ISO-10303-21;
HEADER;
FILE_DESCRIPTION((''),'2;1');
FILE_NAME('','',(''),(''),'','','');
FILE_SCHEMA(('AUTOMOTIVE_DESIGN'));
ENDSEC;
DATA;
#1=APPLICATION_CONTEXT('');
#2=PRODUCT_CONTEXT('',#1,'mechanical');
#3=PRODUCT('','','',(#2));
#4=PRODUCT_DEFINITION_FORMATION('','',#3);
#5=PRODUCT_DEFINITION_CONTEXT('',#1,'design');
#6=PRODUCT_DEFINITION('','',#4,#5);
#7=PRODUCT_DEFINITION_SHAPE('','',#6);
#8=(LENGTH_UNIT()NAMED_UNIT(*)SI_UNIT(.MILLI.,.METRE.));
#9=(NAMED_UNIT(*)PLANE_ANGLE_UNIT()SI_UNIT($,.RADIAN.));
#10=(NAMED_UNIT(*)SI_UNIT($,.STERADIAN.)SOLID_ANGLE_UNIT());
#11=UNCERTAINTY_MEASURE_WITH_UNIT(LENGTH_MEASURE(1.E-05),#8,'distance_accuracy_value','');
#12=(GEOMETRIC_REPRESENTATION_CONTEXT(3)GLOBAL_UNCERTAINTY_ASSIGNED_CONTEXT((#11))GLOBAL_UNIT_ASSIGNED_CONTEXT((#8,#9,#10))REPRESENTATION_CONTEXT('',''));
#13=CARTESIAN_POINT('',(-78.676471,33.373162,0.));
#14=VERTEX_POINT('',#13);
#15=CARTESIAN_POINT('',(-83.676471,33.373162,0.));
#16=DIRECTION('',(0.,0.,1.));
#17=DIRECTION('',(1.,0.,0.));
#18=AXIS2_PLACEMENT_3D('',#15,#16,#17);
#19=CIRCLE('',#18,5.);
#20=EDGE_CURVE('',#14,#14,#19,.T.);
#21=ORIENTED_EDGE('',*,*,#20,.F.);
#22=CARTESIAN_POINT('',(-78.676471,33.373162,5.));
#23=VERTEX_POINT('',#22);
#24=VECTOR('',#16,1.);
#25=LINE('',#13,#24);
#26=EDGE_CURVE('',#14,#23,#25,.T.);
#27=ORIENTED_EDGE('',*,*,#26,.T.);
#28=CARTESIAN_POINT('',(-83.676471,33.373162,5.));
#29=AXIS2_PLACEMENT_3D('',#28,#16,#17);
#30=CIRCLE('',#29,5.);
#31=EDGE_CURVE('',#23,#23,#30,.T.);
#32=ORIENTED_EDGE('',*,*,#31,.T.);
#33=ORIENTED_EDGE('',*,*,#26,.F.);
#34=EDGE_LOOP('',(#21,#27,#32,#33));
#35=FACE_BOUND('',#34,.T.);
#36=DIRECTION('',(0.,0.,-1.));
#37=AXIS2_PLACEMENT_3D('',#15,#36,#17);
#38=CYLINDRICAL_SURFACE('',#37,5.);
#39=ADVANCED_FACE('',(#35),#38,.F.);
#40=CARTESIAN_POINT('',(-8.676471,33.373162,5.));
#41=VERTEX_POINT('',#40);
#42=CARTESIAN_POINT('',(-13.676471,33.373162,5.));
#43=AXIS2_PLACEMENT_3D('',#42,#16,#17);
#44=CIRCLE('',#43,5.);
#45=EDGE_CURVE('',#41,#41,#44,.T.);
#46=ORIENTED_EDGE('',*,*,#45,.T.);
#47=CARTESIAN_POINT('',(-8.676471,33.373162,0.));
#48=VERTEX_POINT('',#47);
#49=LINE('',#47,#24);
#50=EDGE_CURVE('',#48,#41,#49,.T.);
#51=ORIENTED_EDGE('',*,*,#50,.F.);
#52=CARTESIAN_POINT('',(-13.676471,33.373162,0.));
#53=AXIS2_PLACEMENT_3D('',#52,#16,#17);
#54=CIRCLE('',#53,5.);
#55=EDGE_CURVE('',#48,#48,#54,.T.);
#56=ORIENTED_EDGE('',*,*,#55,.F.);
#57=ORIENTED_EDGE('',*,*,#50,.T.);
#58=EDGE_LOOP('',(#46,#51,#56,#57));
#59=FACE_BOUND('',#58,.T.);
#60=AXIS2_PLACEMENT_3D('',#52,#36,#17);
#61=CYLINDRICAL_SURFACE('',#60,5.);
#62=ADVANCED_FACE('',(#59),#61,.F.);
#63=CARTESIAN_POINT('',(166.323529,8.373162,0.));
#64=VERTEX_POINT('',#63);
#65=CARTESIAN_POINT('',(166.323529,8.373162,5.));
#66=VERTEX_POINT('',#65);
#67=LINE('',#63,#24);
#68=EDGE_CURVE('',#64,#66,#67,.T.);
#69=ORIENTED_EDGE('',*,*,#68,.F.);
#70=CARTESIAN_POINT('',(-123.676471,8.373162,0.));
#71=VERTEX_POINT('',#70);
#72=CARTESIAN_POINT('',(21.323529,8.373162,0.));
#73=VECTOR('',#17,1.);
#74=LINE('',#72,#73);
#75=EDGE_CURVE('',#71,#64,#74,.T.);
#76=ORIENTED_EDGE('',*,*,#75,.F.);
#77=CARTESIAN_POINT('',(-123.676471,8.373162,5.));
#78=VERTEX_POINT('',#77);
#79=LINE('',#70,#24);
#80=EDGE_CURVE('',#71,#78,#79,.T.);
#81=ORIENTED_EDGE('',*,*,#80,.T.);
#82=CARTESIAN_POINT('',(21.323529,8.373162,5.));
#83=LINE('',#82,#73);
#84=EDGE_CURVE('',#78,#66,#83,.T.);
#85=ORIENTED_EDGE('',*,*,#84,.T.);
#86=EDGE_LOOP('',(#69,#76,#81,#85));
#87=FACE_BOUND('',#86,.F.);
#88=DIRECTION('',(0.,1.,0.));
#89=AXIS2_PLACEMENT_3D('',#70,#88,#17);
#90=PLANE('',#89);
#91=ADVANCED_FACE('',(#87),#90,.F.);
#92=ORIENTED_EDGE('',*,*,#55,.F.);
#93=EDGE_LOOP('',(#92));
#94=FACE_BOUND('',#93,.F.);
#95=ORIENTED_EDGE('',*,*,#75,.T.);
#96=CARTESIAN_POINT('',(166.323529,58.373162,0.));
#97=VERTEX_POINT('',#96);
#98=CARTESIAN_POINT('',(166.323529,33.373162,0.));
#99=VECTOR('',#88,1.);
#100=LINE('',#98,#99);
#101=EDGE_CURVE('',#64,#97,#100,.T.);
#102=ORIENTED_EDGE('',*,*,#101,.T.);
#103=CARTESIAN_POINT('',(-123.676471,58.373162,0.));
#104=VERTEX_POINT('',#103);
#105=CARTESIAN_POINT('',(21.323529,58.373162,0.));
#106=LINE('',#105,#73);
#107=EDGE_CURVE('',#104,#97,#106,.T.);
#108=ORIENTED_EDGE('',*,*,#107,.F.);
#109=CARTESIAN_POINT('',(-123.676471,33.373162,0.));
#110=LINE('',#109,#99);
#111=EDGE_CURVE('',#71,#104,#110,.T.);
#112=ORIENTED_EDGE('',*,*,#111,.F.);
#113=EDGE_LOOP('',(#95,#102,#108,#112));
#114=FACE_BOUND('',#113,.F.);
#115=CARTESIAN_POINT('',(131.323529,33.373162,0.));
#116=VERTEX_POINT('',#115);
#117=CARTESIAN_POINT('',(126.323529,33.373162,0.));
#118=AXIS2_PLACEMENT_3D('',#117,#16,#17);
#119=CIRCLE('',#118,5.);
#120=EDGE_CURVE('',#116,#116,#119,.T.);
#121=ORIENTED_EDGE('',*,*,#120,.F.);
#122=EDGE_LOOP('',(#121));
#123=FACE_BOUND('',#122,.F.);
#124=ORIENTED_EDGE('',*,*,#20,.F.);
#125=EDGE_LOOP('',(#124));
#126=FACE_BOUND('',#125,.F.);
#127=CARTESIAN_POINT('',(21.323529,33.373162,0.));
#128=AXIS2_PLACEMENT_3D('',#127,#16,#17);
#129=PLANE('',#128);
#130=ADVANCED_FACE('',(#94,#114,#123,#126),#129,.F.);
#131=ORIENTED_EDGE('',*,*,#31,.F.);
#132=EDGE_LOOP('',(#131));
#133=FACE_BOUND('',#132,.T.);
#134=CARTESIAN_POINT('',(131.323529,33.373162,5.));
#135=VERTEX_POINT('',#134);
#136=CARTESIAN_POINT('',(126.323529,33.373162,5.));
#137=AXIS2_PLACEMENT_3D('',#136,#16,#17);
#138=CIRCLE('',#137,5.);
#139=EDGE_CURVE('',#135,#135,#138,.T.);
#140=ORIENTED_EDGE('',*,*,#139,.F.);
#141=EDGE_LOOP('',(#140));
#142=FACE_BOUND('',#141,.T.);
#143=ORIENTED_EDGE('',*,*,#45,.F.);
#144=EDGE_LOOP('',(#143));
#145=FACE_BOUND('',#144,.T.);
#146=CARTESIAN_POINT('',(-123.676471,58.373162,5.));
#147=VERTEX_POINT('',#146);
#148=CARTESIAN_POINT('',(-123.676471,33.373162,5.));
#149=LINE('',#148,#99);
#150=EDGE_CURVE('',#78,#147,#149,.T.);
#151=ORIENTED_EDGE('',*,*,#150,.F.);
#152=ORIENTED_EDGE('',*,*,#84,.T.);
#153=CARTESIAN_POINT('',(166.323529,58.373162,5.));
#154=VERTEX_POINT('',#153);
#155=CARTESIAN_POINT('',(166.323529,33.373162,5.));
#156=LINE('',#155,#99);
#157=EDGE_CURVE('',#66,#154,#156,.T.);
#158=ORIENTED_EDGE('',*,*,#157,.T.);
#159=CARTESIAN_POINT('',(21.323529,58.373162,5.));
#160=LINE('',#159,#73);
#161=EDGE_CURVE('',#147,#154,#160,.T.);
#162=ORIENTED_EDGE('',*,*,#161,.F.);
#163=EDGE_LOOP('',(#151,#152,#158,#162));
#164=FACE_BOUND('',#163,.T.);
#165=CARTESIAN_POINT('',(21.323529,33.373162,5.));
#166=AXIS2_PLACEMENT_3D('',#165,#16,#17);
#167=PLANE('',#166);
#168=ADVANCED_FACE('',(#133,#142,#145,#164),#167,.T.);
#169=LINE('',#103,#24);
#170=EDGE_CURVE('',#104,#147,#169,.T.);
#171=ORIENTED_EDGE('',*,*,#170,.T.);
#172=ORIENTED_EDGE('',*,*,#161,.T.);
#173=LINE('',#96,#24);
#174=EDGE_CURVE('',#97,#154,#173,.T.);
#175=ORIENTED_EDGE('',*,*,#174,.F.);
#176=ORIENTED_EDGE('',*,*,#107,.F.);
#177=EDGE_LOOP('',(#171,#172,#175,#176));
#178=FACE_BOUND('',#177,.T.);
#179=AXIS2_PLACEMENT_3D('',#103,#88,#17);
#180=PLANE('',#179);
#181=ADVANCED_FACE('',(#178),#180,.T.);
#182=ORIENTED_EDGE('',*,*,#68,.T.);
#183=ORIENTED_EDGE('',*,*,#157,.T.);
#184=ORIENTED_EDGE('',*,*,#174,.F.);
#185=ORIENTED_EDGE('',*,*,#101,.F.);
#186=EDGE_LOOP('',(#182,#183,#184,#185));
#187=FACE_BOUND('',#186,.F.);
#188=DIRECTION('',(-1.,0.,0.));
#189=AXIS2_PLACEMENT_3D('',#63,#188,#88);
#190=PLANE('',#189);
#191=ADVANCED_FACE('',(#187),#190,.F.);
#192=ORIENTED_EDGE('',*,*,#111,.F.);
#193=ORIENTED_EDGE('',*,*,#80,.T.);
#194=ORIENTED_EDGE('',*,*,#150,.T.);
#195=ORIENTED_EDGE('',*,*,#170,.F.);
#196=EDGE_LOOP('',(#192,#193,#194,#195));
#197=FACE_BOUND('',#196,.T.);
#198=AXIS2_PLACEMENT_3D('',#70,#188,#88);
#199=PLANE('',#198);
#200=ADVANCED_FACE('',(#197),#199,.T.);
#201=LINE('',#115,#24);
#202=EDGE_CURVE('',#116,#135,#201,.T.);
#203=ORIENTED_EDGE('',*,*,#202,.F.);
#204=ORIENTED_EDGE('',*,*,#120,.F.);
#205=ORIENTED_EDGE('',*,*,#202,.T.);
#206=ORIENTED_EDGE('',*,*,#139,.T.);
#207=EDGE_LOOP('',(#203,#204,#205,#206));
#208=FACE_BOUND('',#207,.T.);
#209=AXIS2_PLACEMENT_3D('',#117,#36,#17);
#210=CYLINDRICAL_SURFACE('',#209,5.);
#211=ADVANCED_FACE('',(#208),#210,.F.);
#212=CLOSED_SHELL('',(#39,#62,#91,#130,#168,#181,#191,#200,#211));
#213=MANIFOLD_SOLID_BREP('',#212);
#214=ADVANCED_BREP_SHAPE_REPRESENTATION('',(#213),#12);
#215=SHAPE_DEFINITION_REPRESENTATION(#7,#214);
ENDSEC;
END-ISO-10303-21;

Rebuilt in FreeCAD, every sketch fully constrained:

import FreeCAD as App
import Part
import Sketcher

V = App.Vector


def add_polygon(sketch, points):
    """Adds a closed chain of lines whose ends are joined by coincident constraints."""
    first, n = sketch.GeometryCount, len(points)
    for a, b in zip(points, points[1:] + points[:1]):
        sketch.addGeometry(Part.LineSegment(App.Vector(*a, 0), App.Vector(*b, 0)), False)
    for i in range(n):
        sketch.addConstraint(Sketcher.Constraint("Coincident", first + i, 2, first + (i + 1) % n, 1))

doc = App.newDocument("Part")
body = doc.addObject("PartDesign::Body", "Body")

# Sketch on XY plane
sketch1 = doc.addObject("Sketcher::SketchObject", "Sketch")
body.addObject(sketch1)
sketch1.AttachmentSupport = (doc.XY_Plane, [""])
sketch1.MapMode = "FlatFace"
add_polygon(sketch1, [(-124, 58), (-124, 8), (166, 8), (166, 58)])  # lines 0-3
sketch1.addGeometry(Part.Circle(V(-84, 33, 0), V(0, 0, 1), 5), False)  # 4
sketch1.addGeometry(Part.Circle(V(-14, 33, 0), V(0, 0, 1), 5), False)  # 5
sketch1.addGeometry(Part.Circle(V(126, 33, 0), V(0, 0, 1), 5), False)  # 6
sketch1.addConstraint(Sketcher.Constraint("Vertical", 0))
sketch1.addConstraint(Sketcher.Constraint("Horizontal", 1))
sketch1.addConstraint(Sketcher.Constraint("Vertical", 2))
sketch1.addConstraint(Sketcher.Constraint("Horizontal", 3))
sketch1.addConstraint(Sketcher.Constraint("Equal", 4, 5))
sketch1.addConstraint(Sketcher.Constraint("Equal", 5, 6))
sketch1.addConstraint(Sketcher.Constraint("Horizontal", 4, 3, 5, 3))
sketch1.addConstraint(Sketcher.Constraint("Horizontal", 5, 3, 6, 3))
sketch1.addConstraint(Sketcher.Constraint("Diameter", 4, 10.0))
sketch1.addConstraint(Sketcher.Constraint("DistanceX", 1, 1, 1, 2, 290.0))
sketch1.addConstraint(Sketcher.Constraint("DistanceY", 0, 2, 0, 1, 50.0))
sketch1.addConstraint(Sketcher.Constraint("DistanceX", 4, 3, 5, 3, 70.0))
sketch1.addConstraint(Sketcher.Constraint("DistanceX", 5, 3, 6, 3, 140.0))
sketch1.addConstraint(Sketcher.Constraint("DistanceX", 0, 2, 4, 3, 40.0))
sketch1.addConstraint(Sketcher.Constraint("DistanceY", 0, 2, 4, 3, 25.0))
sketch1.addConstraint(Sketcher.Constraint("DistanceX", 4, 3, -1, 1, 83.676471))
sketch1.addConstraint(Sketcher.Constraint("DistanceY", -1, 1, 4, 3, 33.373162))
pad1 = doc.addObject("PartDesign::Pad", "Pad")
body.addObject(pad1)
pad1.Profile = sketch1
pad1.Length = 5

doc.recompute()
